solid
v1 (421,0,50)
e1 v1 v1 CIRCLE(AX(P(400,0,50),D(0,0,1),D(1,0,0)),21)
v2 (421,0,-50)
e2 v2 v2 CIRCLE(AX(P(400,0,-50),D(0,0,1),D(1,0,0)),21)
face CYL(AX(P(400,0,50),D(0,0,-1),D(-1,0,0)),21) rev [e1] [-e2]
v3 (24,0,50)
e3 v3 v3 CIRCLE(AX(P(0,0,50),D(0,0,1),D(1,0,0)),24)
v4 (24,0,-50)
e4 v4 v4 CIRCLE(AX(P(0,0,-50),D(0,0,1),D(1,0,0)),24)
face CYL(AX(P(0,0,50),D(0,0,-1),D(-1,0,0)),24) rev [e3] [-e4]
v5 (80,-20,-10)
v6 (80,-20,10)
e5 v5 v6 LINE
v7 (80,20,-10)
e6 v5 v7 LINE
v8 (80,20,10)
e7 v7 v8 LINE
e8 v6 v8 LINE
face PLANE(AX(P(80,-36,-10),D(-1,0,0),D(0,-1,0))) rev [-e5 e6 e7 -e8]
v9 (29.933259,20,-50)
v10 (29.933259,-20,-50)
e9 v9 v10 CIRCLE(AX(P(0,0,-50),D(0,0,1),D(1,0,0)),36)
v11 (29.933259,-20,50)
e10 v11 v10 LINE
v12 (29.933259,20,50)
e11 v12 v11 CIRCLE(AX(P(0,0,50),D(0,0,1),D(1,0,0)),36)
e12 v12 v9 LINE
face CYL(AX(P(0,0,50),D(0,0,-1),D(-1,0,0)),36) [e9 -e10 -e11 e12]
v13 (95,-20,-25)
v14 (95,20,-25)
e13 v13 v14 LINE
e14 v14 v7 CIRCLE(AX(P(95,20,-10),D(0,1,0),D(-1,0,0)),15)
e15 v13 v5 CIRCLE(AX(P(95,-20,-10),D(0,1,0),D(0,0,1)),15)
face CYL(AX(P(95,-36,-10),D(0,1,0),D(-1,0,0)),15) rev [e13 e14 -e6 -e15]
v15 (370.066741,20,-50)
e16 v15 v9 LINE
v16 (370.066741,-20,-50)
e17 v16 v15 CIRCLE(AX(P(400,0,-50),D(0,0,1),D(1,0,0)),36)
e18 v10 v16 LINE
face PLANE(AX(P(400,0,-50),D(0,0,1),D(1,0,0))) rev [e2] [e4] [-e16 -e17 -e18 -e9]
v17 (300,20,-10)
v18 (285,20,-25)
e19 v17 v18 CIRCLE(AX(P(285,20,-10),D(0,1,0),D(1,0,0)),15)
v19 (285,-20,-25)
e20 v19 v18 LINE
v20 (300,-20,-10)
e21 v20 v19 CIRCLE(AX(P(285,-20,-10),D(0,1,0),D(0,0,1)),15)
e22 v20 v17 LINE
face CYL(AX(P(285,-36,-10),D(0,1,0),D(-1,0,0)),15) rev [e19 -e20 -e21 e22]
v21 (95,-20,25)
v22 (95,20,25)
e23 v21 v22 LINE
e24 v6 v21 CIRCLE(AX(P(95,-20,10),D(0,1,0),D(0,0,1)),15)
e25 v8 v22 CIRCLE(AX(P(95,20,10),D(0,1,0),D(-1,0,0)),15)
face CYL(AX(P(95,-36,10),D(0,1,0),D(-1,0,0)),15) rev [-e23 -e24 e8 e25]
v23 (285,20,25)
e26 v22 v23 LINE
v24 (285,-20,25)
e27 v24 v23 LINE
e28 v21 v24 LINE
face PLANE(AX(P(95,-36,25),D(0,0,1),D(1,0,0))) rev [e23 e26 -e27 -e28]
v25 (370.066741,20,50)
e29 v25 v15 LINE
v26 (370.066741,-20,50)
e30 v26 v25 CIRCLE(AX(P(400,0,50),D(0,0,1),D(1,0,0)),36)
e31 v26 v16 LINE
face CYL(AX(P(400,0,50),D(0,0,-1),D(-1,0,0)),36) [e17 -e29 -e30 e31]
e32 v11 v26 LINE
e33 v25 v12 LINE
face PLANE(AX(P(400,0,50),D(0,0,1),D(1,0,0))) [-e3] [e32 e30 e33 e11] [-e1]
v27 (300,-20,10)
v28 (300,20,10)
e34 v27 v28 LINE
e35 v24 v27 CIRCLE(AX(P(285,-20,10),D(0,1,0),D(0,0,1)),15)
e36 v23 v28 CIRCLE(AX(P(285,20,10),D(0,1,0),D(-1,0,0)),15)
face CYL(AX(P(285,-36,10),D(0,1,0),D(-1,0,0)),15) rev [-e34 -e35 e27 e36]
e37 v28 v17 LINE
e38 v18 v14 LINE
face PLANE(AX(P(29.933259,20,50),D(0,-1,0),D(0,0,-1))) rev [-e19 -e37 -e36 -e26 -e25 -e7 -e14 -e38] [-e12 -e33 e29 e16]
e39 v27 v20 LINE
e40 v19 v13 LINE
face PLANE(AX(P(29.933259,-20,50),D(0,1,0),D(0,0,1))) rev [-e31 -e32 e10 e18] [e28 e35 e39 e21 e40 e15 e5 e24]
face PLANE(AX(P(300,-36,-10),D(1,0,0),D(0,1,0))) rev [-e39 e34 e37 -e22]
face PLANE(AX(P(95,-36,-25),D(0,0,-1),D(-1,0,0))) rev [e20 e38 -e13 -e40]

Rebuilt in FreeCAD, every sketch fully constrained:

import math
import FreeCAD as App
import Part
import Sketcher

V = App.Vector

doc = App.newDocument("Part")
params = doc.addObject("Spreadsheet::Sheet", "Params")
for row, (alias, value) in enumerate([
    ("sketch1_diameter", "42 mm"),
    ("sketch1_diameter2", "48 mm"),
    ("sketch1_radius", "36 mm"),
    ("pad1_length", "100 mm"),
    ("sketch2_radius", "15 mm"),
    ("sketch2_width", "190 mm"),
    ("sketch2_height", "20 mm"),
], start=1):
    params.set(f"A{row}", alias)
    params.set(f"B{row}", "=" + value)
    params.setAlias(f"B{row}", alias)

body = doc.addObject("PartDesign::Body", "Body")

# Sketch on XY plane
sketch1 = body.newObject("Sketcher::SketchObject", "Sketch")
sketch1.AttachmentSupport = (doc.getObject("XY_Plane"), [""])
sketch1.MapMode = "FlatFace"
sketch1.addGeometry([
    Part.LineSegment(V(370, 20, 0), V(30, 20, 0)),  # 0
    Part.ArcOfCircle(Part.Circle(V(0, 0, 0), V(0, 0, 1), 36), math.radians(34), math.radians(326)),  # 1
    Part.LineSegment(V(30, -20, 0), V(370, -20, 0)),  # 2
    Part.ArcOfCircle(Part.Circle(V(400, 0, 0), V(0, 0, 1), 36), math.radians(-146), math.radians(146)),  # 3
    Part.Circle(V(400, 0, 0), V(0, 0, 1), 21),  # 4
    Part.Circle(V(0, 0, 0), V(0, 0, 1), 24),  # 5
], False)
sketch1.addConstraint([
    Sketcher.Constraint("Coincident", 0, 2, 1, 1),
    Sketcher.Constraint("Coincident", 1, 2, 2, 1),
    Sketcher.Constraint("Coincident", 2, 2, 3, 1),
    Sketcher.Constraint("Coincident", 3, 2, 0, 1),
    Sketcher.Constraint("Horizontal", 0),
    Sketcher.Constraint("Horizontal", 2),
    Sketcher.Constraint("Coincident", 1, 3, -1, 1),
    Sketcher.Constraint("Coincident", 5, 3, -1, 1),
    Sketcher.Constraint("Coincident", 4, 3, 3, 3),
    Sketcher.Constraint("Equal", 1, 3),
    Sketcher.Constraint("Symmetric", 2, 2, 3, 2, -1),
    Sketcher.Constraint("Diameter", 4, 42.0),
    Sketcher.Constraint("Diameter", 5, 48.0),
    Sketcher.Constraint("Radius", 1, 36.0),
    Sketcher.Constraint("DistanceX", -1, 1, 3, 3, 400.0),
    Sketcher.Constraint("DistanceY", -1, 1, 0, 2, 20.0),
])
sketch1.setExpression("Constraints[11]", "Params.sketch1_diameter")
sketch1.setExpression("Constraints[12]", "Params.sketch1_diameter2")
sketch1.setExpression("Constraints[13]", "Params.sketch1_radius")
pad1 = body.newObject("PartDesign::Pad", "Pad")
pad1.Profile = sketch1
pad1.setExpression("Length", "Params.pad1_length")
pad1.Midplane = True

# Sketch on XZ plane
sketch2 = body.newObject("Sketcher::SketchObject", "Sketch001")
sketch2.AttachmentSupport = (doc.getObject("XZ_Plane"), [""])
sketch2.MapMode = "FlatFace"
sketch2.AttachmentOffset = App.Placement(V(0, 0, -20), App.Rotation())
sketch2.addGeometry([
    Part.LineSegment(V(285, -25, 0), V(95, -25, 0)),  # 0
    Part.ArcOfCircle(Part.Circle(V(95, -10, 0), V(0, 0, 1), 15), math.radians(180), math.radians(270)),  # 1
    Part.LineSegment(V(80, -10, 0), V(80, 10, 0)),  # 2
    Part.ArcOfCircle(Part.Circle(V(95, 10, 0), V(0, 0, 1), 15), math.radians(90), math.radians(180)),  # 3
    Part.LineSegment(V(95, 25, 0), V(285, 25, 0)),  # 4
    Part.ArcOfCircle(Part.Circle(V(285, 10, 0), V(0, 0, 1), 15), math.radians(0), math.radians(90)),  # 5
    Part.LineSegment(V(300, 10, 0), V(300, -10, 0)),  # 6
    Part.ArcOfCircle(Part.Circle(V(285, -10, 0), V(0, 0, 1), 15), math.radians(-90), math.radians(0)),  # 7
], False)
sketch2.addConstraint([
    Sketcher.Constraint("Tangent", 0, 2, 1, 2),
    Sketcher.Constraint("Tangent", 1, 1, 2, 1),
    Sketcher.Constraint("Tangent", 2, 2, 3, 2),
    Sketcher.Constraint("Tangent", 3, 1, 4, 1),
    Sketcher.Constraint("Tangent", 4, 2, 5, 2),
    Sketcher.Constraint("Tangent", 5, 1, 6, 1),
    Sketcher.Constraint("Tangent", 6, 2, 7, 2),
    Sketcher.Constraint("Tangent", 7, 1, 0, 1),
    Sketcher.Constraint("Horizontal", 0),
    Sketcher.Constraint("Vertical", 2),
    Sketcher.Constraint("Horizontal", 4),
    Sketcher.Constraint("Vertical", 6),
    Sketcher.Constraint("Equal", 1, 3),
    Sketcher.Constraint("Equal", 3, 5),
    Sketcher.Constraint("Equal", 5, 7),
    Sketcher.Constraint("Radius", 1, 15.0),
    Sketcher.Constraint("DistanceX", 0, 2, 0, 1, 190.0),
    Sketcher.Constraint("DistanceY", 2, 1, 2, 2, 20.0),
    Sketcher.Constraint("DistanceX", -1, 1, 1, 3, 95.0),
    Sketcher.Constraint("DistanceY", 1, 3, -1, 1, 10.0),
])
sketch2.setExpression("Constraints[15]", "Params.sketch2_radius")
sketch2.setExpression("Constraints[16]", "Params.sketch2_width")
sketch2.setExpression("Constraints[17]", "Params.sketch2_height")
pocket1 = body.newObject("PartDesign::Pocket", "Pocket")
pocket1.Profile = sketch2
pocket1.Type = "ThroughAll"
pocket1.Reversed = True

doc.recompute()
